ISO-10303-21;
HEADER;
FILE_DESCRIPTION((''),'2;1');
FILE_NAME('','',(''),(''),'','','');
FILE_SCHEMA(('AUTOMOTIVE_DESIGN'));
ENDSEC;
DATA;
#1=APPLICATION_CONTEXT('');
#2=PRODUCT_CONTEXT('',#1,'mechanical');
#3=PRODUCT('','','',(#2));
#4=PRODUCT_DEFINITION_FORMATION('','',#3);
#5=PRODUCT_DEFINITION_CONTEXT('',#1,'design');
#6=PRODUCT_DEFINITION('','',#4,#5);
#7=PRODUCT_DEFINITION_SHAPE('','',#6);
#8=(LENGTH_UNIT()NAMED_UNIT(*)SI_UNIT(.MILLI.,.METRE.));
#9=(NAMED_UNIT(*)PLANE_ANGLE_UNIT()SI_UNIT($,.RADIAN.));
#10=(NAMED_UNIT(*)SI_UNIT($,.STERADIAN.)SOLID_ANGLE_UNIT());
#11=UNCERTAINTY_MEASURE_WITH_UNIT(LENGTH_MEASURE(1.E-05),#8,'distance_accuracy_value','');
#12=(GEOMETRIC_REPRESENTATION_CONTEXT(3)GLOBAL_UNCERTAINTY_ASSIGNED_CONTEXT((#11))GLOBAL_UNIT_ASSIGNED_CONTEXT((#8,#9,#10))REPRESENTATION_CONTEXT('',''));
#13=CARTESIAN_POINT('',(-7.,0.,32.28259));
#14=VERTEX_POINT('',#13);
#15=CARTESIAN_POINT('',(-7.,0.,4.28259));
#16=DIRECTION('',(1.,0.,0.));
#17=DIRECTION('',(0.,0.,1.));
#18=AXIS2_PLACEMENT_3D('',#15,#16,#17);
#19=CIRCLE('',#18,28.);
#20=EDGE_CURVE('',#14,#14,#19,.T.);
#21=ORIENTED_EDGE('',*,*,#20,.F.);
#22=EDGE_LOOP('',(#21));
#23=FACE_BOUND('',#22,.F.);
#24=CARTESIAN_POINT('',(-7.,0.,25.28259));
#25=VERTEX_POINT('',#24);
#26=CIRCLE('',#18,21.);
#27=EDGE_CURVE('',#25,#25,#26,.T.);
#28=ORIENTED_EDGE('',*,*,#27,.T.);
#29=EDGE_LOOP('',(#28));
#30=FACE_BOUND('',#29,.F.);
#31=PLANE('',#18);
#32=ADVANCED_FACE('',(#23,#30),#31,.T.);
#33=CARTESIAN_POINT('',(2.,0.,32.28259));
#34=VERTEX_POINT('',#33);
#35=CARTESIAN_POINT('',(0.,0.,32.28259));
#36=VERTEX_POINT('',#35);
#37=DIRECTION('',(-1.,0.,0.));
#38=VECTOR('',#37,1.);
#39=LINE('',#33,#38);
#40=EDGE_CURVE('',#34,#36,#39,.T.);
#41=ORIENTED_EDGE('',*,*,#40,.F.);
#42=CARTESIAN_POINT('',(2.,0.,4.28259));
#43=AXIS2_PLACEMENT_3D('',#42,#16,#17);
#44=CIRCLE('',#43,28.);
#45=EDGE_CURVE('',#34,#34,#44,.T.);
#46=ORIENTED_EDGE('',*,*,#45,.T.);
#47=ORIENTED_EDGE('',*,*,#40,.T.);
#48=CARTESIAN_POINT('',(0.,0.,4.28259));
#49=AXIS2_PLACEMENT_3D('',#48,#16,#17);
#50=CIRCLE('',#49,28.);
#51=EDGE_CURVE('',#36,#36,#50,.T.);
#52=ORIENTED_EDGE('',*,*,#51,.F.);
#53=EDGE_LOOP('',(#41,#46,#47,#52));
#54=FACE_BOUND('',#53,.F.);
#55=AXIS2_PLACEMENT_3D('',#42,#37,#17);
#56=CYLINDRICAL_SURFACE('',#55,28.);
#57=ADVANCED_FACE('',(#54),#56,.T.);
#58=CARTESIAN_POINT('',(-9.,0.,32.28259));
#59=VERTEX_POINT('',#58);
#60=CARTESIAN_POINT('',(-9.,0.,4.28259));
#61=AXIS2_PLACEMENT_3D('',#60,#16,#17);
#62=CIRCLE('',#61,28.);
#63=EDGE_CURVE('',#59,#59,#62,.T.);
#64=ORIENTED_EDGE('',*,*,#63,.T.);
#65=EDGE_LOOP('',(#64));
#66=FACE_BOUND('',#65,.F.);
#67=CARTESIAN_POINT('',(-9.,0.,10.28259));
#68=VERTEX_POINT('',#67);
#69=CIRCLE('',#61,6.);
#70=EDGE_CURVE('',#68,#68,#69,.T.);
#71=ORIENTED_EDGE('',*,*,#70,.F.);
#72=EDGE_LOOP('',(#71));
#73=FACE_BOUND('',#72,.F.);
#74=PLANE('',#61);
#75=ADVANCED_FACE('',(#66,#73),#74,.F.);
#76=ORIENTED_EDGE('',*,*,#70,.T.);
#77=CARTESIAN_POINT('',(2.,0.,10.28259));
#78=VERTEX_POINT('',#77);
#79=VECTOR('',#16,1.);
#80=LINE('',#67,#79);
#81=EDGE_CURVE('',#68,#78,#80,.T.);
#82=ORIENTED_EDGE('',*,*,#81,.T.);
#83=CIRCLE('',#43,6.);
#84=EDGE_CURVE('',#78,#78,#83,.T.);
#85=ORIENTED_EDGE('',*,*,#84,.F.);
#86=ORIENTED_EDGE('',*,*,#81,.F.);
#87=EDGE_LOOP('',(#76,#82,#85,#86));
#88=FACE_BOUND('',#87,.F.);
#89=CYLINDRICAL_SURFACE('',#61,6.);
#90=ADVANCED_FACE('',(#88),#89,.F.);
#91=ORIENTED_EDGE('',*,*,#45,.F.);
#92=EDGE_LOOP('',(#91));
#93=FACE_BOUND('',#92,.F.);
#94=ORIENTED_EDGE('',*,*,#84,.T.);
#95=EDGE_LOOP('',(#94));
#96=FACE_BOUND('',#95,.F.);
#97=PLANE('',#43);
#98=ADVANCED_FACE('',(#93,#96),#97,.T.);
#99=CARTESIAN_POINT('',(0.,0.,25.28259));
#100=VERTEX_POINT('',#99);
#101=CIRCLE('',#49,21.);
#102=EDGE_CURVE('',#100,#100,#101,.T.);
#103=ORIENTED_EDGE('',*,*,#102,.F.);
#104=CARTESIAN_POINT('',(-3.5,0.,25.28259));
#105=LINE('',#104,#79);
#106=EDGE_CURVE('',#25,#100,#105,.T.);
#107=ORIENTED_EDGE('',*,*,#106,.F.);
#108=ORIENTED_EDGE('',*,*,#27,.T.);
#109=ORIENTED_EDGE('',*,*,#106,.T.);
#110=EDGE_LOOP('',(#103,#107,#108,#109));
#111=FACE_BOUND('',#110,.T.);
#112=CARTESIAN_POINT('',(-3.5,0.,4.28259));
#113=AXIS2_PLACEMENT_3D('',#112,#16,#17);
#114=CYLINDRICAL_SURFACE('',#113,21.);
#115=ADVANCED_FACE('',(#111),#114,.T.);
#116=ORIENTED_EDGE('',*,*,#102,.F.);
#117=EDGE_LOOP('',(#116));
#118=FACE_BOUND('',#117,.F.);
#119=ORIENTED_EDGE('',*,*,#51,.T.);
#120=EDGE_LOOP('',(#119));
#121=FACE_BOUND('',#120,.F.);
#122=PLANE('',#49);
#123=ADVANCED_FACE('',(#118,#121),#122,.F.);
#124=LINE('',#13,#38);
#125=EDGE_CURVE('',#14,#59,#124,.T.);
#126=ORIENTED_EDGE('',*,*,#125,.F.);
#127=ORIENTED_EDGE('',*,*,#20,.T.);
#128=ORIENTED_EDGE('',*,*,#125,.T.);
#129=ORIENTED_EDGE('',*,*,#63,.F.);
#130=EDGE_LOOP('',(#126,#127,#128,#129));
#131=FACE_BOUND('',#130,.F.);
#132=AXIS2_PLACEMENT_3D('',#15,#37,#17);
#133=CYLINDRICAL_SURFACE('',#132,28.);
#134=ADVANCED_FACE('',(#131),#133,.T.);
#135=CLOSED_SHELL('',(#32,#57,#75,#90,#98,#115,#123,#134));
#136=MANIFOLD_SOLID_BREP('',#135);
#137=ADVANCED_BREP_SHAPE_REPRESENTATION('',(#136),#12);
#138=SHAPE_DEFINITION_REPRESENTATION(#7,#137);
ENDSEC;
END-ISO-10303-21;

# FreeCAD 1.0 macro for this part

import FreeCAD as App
import Part
import Sketcher

V = App.Vector
Q = App.Units.Quantity

doc = App.newDocument("Part")
body = doc.addObject("PartDesign::Body", "Body")

# Sketch on XZ plane
sketch1 = body.newObject("Sketcher::SketchObject", "Sketch")
sketch1.AttachmentSupport = (doc.getObject("XZ_Plane"), [""])
sketch1.MapMode = "FlatFace"
sketch1.addGeometry([
    Part.LineSegment(V(0, 25.28259, 0), V(-7, 25.28259, 0)),  # 0
    Part.LineSegment(V(-7, 25.28259, 0), V(-7, 32.28259, 0)),  # 1
    Part.LineSegment(V(-7, 32.28259, 0), V(-9, 32.28259, 0)),  # 2
    Part.LineSegment(V(-9, 32.28259, 0), V(-9, 10.28259, 0)),  # 3
    Part.LineSegment(V(-9, 10.28259, 0), V(2, 10.28259, 0)),  # 4
    Part.LineSegment(V(2, 10.28259, 0), V(2, 32.28259, 0)),  # 5
    Part.LineSegment(V(2, 32.28259, 0), V(0, 32.28259, 0)),  # 6
    Part.LineSegment(V(0, 32.28259, 0), V(0, 25.28259, 0)),  # 7
], False)
sketch1.addGeometry(Part.LineSegment(V(-9, 4.28259, 0), V(2, 4.28259, 0)), True)  # axis
sketch1.addConstraint([
    Sketcher.Constraint("Coincident", 0, 2, 1, 1),
    Sketcher.Constraint("Coincident", 1, 2, 2, 1),
    Sketcher.Constraint("Coincident", 2, 2, 3, 1),
    Sketcher.Constraint("Coincident", 3, 2, 4, 1),
    Sketcher.Constraint("Coincident", 4, 2, 5, 1),
    Sketcher.Constraint("Coincident", 5, 2, 6, 1),
    Sketcher.Constraint("Coincident", 6, 2, 7, 1),
    Sketcher.Constraint("Coincident", 7, 2, 0, 1),
    Sketcher.Constraint("Horizontal", 0),
    Sketcher.Constraint("Vertical", 1),
    Sketcher.Constraint("Horizontal", 2),
    Sketcher.Constraint("Vertical", 3),
    Sketcher.Constraint("Horizontal", 4),
    Sketcher.Constraint("Vertical", 5),
    Sketcher.Constraint("Horizontal", 6),
    Sketcher.Constraint("Vertical", 7),
    Sketcher.Constraint("Horizontal", 8),
    Sketcher.Constraint("PointOnObject", 6, 2, -2),
    Sketcher.Constraint("Horizontal", 2, 2, 5, 2),
    Sketcher.Constraint("Vertical", 3, 2, 8, 1),
    Sketcher.Constraint("Vertical", 5, 2, 8, 2),
    Sketcher.Constraint("Equal", 2, 6),
    Sketcher.Constraint("Equal", 0, 1),
    Sketcher.Constraint("DistanceX", 0, 2, 0, 1, Q("7 mm")),
    Sketcher.Constraint("DistanceX", 2, 2, 2, 1, Q("2 mm")),
    Sketcher.Constraint("DistanceY", 3, 2, 3, 1, Q("22 mm")),
    Sketcher.Constraint("DistanceY", 8, 1, 3, 2, Q("6 mm")),
    Sketcher.Constraint("DistanceY", -1, 1, 0, 2, Q("25.28259 mm")),
])
revolution = body.newObject("PartDesign::Revolution", "Revolution")
revolution.Profile = sketch1
revolution.ReferenceAxis = (sketch1, ["Axis0"])
revolution.Angle = 360

doc.recompute()
